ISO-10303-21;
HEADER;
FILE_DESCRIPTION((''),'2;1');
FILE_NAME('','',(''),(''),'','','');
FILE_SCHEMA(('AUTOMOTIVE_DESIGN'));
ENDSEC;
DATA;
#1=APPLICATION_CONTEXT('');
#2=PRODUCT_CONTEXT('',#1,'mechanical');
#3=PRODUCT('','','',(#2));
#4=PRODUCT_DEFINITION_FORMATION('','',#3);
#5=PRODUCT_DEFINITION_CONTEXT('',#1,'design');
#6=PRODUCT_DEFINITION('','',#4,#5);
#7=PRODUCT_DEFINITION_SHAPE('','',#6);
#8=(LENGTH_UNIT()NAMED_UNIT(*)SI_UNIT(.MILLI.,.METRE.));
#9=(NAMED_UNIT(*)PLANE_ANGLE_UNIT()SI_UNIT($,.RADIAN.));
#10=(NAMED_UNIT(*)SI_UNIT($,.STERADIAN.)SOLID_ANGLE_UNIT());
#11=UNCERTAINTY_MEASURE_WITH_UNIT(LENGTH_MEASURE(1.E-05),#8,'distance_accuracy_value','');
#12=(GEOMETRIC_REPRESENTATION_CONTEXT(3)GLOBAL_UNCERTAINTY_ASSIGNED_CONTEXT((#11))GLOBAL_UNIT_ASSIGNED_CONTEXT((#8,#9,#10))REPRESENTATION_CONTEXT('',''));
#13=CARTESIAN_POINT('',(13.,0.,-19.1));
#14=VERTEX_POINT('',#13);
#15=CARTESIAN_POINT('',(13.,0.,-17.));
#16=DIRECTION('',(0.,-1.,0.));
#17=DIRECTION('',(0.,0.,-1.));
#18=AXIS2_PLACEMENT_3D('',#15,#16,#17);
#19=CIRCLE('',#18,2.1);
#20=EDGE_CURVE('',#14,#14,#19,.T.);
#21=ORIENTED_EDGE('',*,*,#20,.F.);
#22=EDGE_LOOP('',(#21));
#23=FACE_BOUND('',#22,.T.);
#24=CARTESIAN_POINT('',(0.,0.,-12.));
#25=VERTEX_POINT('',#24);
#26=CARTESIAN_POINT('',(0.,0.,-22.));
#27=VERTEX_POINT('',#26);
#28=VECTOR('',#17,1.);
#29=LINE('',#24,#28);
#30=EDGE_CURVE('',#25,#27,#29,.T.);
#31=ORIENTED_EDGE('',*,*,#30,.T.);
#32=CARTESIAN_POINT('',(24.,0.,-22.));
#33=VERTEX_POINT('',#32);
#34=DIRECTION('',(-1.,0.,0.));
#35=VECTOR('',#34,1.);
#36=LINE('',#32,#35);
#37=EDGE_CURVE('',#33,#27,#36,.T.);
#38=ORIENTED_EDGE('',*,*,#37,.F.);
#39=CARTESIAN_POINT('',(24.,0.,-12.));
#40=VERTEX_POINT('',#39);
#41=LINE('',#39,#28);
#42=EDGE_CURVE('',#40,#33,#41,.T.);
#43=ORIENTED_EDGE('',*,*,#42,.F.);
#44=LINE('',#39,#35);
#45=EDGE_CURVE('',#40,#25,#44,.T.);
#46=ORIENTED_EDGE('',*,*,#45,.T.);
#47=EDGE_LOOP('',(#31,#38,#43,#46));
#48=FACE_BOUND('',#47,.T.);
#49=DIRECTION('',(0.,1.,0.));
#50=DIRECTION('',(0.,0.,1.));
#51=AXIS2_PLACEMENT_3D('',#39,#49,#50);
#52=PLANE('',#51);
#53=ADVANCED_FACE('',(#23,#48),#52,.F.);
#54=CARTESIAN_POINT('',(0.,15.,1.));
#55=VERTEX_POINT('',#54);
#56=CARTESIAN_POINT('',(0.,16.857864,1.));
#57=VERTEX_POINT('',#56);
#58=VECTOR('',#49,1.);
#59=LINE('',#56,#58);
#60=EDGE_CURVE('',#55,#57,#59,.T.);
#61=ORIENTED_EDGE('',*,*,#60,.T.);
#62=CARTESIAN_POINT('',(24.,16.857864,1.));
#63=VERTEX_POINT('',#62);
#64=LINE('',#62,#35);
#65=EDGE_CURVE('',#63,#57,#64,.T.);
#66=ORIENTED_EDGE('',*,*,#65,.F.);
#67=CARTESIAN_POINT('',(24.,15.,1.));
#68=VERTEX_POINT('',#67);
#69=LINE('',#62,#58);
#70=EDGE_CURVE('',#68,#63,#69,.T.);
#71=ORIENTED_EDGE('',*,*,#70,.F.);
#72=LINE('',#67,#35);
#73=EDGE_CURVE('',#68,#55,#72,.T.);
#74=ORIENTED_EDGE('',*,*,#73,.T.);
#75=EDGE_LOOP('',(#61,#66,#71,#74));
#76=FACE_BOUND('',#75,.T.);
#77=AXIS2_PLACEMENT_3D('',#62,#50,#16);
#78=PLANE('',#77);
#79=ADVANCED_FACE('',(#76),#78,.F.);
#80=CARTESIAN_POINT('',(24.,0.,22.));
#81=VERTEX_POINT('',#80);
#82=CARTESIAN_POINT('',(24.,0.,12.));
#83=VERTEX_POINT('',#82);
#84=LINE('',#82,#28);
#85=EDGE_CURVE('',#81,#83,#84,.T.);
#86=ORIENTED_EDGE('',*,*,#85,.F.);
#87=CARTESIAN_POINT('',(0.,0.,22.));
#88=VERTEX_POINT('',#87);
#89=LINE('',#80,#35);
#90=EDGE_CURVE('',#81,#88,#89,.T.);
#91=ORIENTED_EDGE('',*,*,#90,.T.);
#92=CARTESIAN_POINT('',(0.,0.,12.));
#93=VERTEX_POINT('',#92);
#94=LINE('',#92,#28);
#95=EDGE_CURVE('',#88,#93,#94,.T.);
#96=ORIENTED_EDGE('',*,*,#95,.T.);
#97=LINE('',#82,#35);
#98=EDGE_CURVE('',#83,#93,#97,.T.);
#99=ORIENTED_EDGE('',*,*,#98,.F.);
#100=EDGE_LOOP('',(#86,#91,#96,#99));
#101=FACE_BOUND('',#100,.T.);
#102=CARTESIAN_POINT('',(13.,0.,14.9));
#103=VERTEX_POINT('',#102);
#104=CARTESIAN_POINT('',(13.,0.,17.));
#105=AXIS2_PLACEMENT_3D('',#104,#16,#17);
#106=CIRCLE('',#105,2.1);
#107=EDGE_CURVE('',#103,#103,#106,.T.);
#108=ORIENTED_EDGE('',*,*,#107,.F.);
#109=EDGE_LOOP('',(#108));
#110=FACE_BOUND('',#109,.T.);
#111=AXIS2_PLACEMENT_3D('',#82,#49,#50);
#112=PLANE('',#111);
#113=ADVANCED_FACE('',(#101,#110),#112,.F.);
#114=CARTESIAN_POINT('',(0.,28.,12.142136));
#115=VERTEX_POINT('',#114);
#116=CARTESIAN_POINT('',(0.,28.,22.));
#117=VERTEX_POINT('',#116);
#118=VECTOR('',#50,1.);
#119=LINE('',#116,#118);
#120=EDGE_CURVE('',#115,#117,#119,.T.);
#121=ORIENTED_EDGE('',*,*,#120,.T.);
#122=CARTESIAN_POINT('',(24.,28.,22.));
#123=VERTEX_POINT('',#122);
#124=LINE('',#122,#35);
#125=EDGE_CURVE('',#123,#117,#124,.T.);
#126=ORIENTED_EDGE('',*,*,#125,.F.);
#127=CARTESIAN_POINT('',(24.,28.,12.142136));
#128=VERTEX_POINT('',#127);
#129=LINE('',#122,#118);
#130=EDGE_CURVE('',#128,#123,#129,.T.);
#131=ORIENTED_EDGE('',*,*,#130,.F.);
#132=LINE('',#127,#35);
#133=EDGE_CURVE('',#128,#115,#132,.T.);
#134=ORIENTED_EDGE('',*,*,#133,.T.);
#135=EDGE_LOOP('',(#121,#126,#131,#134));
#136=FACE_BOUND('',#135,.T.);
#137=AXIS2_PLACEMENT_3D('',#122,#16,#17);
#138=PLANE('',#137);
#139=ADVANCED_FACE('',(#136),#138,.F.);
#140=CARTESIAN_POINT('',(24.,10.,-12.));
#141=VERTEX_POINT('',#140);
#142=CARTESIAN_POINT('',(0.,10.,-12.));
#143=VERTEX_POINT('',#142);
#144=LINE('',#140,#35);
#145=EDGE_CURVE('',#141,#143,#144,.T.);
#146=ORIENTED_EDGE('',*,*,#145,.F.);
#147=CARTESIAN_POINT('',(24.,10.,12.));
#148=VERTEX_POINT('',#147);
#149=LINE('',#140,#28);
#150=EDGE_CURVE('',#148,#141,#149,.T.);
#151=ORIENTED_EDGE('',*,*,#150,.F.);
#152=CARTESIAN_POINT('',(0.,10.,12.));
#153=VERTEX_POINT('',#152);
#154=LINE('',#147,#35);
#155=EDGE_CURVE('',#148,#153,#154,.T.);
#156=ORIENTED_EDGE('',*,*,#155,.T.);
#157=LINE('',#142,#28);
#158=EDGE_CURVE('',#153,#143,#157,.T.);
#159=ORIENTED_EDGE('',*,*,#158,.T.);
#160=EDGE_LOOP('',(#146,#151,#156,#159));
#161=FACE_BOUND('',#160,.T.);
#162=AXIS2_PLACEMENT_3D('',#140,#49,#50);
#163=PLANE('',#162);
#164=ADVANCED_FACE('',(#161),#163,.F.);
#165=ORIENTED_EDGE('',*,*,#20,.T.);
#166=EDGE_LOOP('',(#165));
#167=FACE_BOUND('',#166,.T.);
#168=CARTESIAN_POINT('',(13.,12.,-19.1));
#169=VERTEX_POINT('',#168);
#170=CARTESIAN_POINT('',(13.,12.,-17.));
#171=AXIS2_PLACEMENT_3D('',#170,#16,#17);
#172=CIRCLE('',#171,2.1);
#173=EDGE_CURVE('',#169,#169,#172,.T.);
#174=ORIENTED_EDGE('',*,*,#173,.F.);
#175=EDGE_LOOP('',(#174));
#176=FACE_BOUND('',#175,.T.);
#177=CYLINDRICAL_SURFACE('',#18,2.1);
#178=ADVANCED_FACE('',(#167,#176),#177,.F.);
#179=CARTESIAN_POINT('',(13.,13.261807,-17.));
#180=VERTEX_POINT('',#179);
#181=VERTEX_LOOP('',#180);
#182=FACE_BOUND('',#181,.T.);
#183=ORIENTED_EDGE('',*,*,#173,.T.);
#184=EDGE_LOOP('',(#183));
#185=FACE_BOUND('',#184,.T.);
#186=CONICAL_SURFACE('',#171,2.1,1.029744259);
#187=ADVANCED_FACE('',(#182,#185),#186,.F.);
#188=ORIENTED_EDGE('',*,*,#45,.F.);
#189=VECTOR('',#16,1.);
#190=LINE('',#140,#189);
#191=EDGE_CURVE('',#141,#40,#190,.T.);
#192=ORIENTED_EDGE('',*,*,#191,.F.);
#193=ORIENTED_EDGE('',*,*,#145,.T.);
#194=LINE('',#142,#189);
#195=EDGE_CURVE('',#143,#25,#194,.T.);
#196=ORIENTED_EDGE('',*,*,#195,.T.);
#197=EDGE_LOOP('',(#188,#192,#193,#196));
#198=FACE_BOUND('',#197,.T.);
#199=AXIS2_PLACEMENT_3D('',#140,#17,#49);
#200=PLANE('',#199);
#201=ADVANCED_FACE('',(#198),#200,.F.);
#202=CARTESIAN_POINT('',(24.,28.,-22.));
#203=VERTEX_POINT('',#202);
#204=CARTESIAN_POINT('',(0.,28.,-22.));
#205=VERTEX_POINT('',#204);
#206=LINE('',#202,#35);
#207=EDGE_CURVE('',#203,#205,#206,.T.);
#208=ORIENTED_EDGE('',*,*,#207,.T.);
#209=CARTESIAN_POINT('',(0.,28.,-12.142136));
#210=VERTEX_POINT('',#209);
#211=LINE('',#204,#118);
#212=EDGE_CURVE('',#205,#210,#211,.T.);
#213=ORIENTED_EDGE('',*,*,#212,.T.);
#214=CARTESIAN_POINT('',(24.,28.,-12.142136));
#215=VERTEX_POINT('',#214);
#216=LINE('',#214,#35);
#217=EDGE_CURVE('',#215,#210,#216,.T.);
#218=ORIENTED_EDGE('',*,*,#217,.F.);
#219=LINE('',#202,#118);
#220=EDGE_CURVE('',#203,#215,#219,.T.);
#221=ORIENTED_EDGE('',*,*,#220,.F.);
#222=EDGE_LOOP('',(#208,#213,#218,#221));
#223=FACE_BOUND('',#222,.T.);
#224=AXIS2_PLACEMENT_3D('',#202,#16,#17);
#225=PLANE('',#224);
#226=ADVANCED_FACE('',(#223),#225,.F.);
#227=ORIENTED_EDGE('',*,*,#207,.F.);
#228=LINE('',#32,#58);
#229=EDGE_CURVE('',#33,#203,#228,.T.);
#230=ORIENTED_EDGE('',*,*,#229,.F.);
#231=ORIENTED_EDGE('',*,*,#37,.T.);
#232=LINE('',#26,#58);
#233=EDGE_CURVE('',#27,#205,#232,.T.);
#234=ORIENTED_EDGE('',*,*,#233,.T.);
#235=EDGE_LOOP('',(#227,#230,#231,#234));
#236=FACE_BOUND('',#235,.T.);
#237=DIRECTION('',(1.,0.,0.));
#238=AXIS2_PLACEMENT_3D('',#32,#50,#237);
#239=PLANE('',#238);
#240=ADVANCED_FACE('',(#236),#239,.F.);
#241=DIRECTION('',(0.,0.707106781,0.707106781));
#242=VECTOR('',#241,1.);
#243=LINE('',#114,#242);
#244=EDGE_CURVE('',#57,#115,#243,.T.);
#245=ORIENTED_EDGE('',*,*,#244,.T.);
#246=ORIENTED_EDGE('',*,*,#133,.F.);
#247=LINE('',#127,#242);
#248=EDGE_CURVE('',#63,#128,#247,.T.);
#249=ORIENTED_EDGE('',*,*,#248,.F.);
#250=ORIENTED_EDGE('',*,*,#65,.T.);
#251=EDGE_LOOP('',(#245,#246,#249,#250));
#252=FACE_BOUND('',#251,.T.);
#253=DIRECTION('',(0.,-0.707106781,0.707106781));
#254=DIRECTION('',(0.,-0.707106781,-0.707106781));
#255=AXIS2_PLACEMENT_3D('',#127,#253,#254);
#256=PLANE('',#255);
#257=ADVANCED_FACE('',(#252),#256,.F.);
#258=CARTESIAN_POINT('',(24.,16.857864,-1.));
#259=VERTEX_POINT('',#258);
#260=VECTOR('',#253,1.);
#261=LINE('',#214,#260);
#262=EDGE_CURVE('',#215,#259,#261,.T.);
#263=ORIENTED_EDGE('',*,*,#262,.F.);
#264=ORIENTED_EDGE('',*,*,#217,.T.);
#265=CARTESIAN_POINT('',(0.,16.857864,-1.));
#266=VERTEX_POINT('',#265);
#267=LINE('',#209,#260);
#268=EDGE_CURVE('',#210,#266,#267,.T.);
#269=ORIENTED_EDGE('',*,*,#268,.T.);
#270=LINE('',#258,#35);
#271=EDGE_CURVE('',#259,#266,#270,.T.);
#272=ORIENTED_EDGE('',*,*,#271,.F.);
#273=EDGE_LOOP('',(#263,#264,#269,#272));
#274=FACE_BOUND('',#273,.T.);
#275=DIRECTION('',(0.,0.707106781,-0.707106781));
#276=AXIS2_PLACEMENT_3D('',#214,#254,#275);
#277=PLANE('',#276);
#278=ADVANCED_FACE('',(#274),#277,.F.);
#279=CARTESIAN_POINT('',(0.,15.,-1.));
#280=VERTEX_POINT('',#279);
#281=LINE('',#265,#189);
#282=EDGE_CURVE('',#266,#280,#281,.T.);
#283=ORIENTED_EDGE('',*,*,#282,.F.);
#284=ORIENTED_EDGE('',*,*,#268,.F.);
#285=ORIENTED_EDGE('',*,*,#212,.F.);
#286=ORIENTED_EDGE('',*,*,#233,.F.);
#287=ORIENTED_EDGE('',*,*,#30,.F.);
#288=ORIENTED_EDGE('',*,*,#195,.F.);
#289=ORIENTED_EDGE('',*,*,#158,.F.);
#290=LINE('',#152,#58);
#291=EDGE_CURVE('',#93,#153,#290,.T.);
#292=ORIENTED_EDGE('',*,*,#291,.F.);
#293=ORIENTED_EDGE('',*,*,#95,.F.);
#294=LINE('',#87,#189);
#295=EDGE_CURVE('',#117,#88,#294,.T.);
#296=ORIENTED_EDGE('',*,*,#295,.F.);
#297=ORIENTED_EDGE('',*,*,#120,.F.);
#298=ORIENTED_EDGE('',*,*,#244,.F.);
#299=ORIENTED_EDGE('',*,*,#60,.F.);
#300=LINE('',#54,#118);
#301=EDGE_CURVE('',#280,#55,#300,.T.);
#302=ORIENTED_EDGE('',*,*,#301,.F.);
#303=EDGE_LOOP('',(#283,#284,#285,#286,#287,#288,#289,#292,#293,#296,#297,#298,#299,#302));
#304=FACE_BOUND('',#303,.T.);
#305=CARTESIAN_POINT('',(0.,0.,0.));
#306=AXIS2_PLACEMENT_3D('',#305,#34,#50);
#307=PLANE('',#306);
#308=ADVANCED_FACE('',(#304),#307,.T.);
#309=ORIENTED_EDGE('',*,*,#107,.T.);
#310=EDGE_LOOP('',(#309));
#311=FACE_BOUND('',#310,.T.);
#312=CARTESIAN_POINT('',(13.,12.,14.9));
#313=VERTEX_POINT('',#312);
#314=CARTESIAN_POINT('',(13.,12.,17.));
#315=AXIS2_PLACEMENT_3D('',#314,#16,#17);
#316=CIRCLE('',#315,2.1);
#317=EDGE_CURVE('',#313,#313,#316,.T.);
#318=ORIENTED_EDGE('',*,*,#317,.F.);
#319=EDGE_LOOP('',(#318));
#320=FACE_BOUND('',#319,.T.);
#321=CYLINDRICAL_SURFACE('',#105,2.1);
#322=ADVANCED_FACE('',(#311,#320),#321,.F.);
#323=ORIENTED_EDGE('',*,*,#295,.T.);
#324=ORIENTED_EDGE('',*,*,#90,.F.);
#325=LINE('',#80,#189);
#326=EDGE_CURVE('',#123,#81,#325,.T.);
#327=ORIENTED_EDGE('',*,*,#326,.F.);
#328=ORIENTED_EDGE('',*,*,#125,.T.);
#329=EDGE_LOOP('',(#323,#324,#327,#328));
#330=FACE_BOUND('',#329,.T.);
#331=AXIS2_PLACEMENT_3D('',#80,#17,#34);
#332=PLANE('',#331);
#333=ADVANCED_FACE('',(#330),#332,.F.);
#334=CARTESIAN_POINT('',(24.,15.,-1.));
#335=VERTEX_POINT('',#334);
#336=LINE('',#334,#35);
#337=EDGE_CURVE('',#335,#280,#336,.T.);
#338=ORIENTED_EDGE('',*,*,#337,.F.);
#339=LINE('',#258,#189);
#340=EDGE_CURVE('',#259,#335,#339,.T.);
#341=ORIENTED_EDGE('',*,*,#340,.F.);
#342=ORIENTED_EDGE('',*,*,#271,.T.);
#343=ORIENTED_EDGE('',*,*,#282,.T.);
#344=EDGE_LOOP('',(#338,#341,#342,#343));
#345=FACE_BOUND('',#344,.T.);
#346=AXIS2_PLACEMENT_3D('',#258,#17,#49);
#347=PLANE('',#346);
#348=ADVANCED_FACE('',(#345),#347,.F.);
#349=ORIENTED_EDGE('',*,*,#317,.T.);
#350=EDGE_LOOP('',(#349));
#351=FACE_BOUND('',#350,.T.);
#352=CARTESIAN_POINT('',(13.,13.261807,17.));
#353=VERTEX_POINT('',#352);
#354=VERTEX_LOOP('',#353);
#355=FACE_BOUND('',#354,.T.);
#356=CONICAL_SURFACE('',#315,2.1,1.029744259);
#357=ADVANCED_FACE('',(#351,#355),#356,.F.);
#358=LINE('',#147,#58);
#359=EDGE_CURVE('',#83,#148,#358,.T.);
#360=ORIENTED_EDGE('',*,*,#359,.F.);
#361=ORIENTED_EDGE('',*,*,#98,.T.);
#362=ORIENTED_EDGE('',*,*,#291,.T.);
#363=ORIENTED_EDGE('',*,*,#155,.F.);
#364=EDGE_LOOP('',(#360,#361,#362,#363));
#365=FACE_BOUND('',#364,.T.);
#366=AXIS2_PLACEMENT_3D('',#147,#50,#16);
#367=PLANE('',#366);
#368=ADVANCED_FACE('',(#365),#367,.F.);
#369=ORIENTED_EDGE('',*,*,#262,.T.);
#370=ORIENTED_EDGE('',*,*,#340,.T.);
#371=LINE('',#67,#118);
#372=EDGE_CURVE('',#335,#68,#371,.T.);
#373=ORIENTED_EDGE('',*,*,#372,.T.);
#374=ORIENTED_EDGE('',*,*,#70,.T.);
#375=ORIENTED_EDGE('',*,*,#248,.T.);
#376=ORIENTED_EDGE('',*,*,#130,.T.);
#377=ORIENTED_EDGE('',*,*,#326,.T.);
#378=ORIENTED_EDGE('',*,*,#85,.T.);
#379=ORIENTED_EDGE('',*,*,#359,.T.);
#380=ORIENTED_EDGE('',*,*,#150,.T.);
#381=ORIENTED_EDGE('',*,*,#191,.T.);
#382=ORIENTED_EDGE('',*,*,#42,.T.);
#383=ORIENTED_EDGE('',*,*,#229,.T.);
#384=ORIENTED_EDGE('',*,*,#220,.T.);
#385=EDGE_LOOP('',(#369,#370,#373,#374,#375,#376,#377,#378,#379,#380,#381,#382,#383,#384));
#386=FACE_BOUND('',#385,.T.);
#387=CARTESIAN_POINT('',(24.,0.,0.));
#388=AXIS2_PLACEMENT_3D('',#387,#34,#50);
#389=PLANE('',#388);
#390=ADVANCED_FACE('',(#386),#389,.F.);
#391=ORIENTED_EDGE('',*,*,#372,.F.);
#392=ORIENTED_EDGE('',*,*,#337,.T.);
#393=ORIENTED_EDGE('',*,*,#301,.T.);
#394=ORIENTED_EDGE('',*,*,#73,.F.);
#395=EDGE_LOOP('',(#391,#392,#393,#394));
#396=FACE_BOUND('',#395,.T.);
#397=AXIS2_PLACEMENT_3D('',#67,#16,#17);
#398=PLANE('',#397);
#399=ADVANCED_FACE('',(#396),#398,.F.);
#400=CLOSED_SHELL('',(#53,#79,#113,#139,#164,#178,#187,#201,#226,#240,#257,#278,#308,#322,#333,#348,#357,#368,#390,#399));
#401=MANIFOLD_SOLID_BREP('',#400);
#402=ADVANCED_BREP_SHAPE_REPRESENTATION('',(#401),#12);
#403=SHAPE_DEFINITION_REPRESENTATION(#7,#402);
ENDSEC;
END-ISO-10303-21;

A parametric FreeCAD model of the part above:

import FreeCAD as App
import Part
import Sketcher

V = App.Vector
Q = App.Units.Quantity

doc = App.newDocument("Part")
body = doc.addObject("PartDesign::Body", "Body")

# Sketch on YZ plane
sketch1 = body.newObject("Sketcher::SketchObject", "Sketch")
sketch1.AttachmentSupport = (doc.getObject("YZ_Plane"), [""])
sketch1.MapMode = "FlatFace"
sketch1.addGeometry([
    Part.LineSegment(V(10, 12, 0), V(10, -12, 0)),  # 0
    Part.LineSegment(V(10, -12, 0), V(0, -12, 0)),  # 1
    Part.LineSegment(V(0, -12, 0), V(0, -22, 0)),  # 2
    Part.LineSegment(V(0, -22, 0), V(28, -22, 0)),  # 3
    Part.LineSegment(V(28, -22, 0), V(28, -12.142136, 0)),  # 4
    Part.LineSegment(V(28, -12.142136, 0), V(16.857864, -1, 0)),  # 5
    Part.LineSegment(V(16.857864, -1, 0), V(15, -1, 0)),  # 6
    Part.LineSegment(V(15, -1, 0), V(15, 1, 0)),  # 7
    Part.LineSegment(V(15, 1, 0), V(16.857864, 1, 0)),  # 8
    Part.LineSegment(V(16.857864, 1, 0), V(28, 12.142136, 0)),  # 9
    Part.LineSegment(V(28, 12.142136, 0), V(28, 22, 0)),  # 10
    Part.LineSegment(V(28, 22, 0), V(0, 22, 0)),  # 11
    Part.LineSegment(V(0, 22, 0), V(0, 12, 0)),  # 12
    Part.LineSegment(V(0, 12, 0), V(10, 12, 0)),  # 13
], False)
sketch1.addConstraint([
    Sketcher.Constraint("Coincident", 0, 2, 1, 1),
    Sketcher.Constraint("Coincident", 1, 2, 2, 1),
    Sketcher.Constraint("Coincident", 2, 2, 3, 1),
    Sketcher.Constraint("Coincident", 3, 2, 4, 1),
    Sketcher.Constraint("Coincident", 4, 2, 5, 1),
    Sketcher.Constraint("Coincident", 5, 2, 6, 1),
    Sketcher.Constraint("Coincident", 6, 2, 7, 1),
    Sketcher.Constraint("Coincident", 7, 2, 8, 1),
    Sketcher.Constraint("Coincident", 8, 2, 9, 1),
    Sketcher.Constraint("Coincident", 9, 2, 10, 1),
    Sketcher.Constraint("Coincident", 10, 2, 11, 1),
    Sketcher.Constraint("Coincident", 11, 2, 12, 1),
    Sketcher.Constraint("Coincident", 12, 2, 13, 1),
    Sketcher.Constraint("Coincident", 13, 2, 0, 1),
    Sketcher.Constraint("Vertical", 0),
    Sketcher.Constraint("Horizontal", 1),
    Sketcher.Constraint("Vertical", 2),
    Sketcher.Constraint("Horizontal", 3),
    Sketcher.Constraint("Vertical", 4),
    Sketcher.Constraint("Horizontal", 6),
    Sketcher.Constraint("Vertical", 7),
    Sketcher.Constraint("Horizontal", 8),
    Sketcher.Constraint("Vertical", 10),
    Sketcher.Constraint("Horizontal", 11),
    Sketcher.Constraint("Vertical", 12),
    Sketcher.Constraint("Horizontal", 13),
    Sketcher.Constraint("Symmetric", 2, 2, 11, 2, -1, 1),
    Sketcher.Constraint("Symmetric", 5, 2, 8, 2, -1),
    Sketcher.Constraint("Symmetric", 4, 2, 9, 2, -1),
    Sketcher.Constraint("Symmetric", 1, 2, 12, 2, -1),
    Sketcher.Constraint("Perpendicular", 5, 9),
    Sketcher.Constraint("Equal", 13, 2),
    Sketcher.Constraint("DistanceX", 1, 2, 1, 1, Q("10 mm")),
    Sketcher.Constraint("DistanceX", 3, 1, 3, 2, Q("28 mm")),
    Sketcher.Constraint("DistanceY", 0, 2, 0, 1, Q("24 mm")),
    Sketcher.Constraint("DistanceY", 7, 1, 7, 2, Q("2 mm")),
    Sketcher.Constraint("DistanceX", -1, 1, 6, 2, Q("15 mm")),
    Sketcher.Constraint("Distance", 5, Q("15.757359 mm")),
])
pad1 = body.newObject("PartDesign::Pad", "Pad")
pad1.Profile = sketch1
pad1.Length = 24

# Sketch on XZ plane
sketch2 = body.newObject("Sketcher::SketchObject", "Sketch001")
sketch2.AttachmentSupport = (doc.getObject("XZ_Plane"), [""])
sketch2.MapMode = "FlatFace"
sketch2.addGeometry([
    Part.Circle(V(13, -17, 0), V(0, 0, 1), 2.1),
    Part.Circle(V(13, 17, 0), V(0, 0, 1), 2.1),
], False)
sketch2.addConstraint([
    Sketcher.Constraint("Equal", 0, 1),
    Sketcher.Constraint("Symmetric", 0, 3, 1, 3, -1),
    Sketcher.Constraint("Diameter", 0, Q("4.2 mm")),
    Sketcher.Constraint("DistanceX", -1, 1, 0, 3, Q("13 mm")),
    Sketcher.Constraint("DistanceY", 0, 3, -1, 1, Q("17 mm")),
])
doc.recompute()
hole = body.newObject("PartDesign::Hole", "Hole")
hole.Profile = sketch2
hole.ThreadType = "None"
hole.Diameter = 4.2
hole.DepthType = "Dimension"
hole.Depth = 12
hole.DrillPoint = "Angled"
hole.DrillPointAngle = 118

doc.recompute()
